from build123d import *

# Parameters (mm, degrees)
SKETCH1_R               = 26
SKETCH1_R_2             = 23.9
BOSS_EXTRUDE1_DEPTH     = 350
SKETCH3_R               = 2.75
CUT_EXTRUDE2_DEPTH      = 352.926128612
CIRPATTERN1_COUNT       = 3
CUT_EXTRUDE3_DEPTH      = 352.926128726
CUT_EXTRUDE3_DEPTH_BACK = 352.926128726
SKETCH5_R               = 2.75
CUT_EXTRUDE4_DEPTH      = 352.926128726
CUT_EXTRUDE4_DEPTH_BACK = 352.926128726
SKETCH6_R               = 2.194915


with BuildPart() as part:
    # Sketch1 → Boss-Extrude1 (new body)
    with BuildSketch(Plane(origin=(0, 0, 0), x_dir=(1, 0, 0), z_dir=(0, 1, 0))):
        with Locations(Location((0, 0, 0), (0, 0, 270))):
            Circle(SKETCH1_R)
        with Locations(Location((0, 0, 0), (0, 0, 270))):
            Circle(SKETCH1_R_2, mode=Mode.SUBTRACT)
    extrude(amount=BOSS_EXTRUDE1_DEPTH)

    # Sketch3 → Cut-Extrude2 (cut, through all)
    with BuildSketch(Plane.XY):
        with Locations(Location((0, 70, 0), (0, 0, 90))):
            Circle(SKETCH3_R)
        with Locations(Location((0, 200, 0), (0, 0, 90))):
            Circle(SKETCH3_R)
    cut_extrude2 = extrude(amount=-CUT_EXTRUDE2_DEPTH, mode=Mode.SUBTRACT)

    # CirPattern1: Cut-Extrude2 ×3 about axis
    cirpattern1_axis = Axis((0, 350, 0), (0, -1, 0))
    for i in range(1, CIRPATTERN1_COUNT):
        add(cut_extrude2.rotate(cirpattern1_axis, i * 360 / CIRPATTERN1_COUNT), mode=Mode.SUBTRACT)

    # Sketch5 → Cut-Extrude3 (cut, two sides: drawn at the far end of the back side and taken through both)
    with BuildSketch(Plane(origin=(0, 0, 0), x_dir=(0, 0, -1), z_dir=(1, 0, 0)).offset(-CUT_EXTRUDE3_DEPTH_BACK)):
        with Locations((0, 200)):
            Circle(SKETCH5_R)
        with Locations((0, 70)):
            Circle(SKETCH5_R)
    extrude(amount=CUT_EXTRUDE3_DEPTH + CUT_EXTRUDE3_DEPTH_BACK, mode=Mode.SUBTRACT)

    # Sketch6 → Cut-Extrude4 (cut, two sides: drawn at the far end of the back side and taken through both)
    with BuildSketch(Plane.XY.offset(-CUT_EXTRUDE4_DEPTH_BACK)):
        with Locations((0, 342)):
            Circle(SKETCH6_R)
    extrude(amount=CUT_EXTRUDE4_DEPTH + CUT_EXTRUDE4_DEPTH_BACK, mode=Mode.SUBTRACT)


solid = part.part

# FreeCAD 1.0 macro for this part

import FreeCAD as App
import Part
import Sketcher
from FreeCAD import Vector
Q = App.Units.Quantity

doc = App.newDocument("Part")
body = doc.addObject("PartDesign::Body", "Body")

# Sketch on XZ plane
sketch1 = body.newObject("Sketcher::SketchObject", "Sketch")
sketch1.AttachmentSupport = (doc.getObject("XZ_Plane"), [""])
sketch1.MapMode = "FlatFace"
sketch1.addGeometry(Part.Circle(Vector(0, 0, 0), Vector(0, 0, 1), 26), False)
sketch1.addGeometry(Part.Circle(Vector(0, 0, 0), Vector(0, 0, 1), 24), False)
sketch1.addConstraint(Sketcher.Constraint("Coincident", 0, 3, -1, 1))
sketch1.addConstraint(Sketcher.Constraint("Coincident", 1, 3, -1, 1))
sketch1.addConstraint(Sketcher.Constraint("Diameter", 0, Q("52 mm")))
sketch1.addConstraint(Sketcher.Constraint("Diameter", 1, Q("47.8 mm")))
pad1 = body.newObject("PartDesign::Pad", "Pad")
pad1.Profile = sketch1
pad1.Length = 350
pad1.Reversed = True

# Sketch on XY plane
sketch2 = body.newObject("Sketcher::SketchObject", "Sketch001")
sketch2.AttachmentSupport = (doc.getObject("XY_Plane"), [""])
sketch2.MapMode = "FlatFace"
sketch2.addGeometry(Part.Circle(Vector(0, 70, 0), Vector(0, 0, 1), 2.8), False)
sketch2.addGeometry(Part.Circle(Vector(0, 200, 0), Vector(0, 0, 1), 2.8), False)
sketch2.addConstraint(Sketcher.Constraint("Equal", 0, 1))
sketch2.addConstraint(Sketcher.Constraint("PointOnObject", 0, 3, -2))
sketch2.addConstraint(Sketcher.Constraint("PointOnObject", 1, 3, -2))
sketch2.addConstraint(Sketcher.Constraint("Diameter", 0, Q("5.5 mm")))
sketch2.addConstraint(Sketcher.Constraint("DistanceY", -1, 1, 0, 3, Q("70 mm")))
sketch2.addConstraint(Sketcher.Constraint("DistanceY", -1, 1, 1, 3, Q("200 mm")))
pocket1 = body.newObject("PartDesign::Pocket", "Pocket")
pocket1.Profile = sketch2
pocket1.Type = "ThroughAll"
doc.recompute()

polarpattern = body.newObject("PartDesign::PolarPattern", "PolarPattern")
polarpattern.Originals = [pocket1]
polarpattern.Axis = (doc.getObject("Y_Axis"), [""])
polarpattern.Angle = 360
polarpattern.Occurrences = 3
body.Tip = polarpattern

# Sketch on YZ plane
sketch3 = body.newObject("Sketcher::SketchObject", "Sketch002")
sketch3.AttachmentSupport = (doc.getObject("YZ_Plane"), [""])
sketch3.MapMode = "FlatFace"
sketch3.addGeometry(Part.Circle(Vector(200, 0, 0), Vector(0, 0, 1), 2.8), False)
sketch3.addGeometry(Part.Circle(Vector(70, 0, 0), Vector(0, 0, 1), 2.8), False)
sketch3.addConstraint(Sketcher.Constraint("Equal", 0, 1))
sketch3.addConstraint(Sketcher.Constraint("PointOnObject", 0, 3, -1))
sketch3.addConstraint(Sketcher.Constraint("PointOnObject", 1, 3, -1))
sketch3.addConstraint(Sketcher.Constraint("Diameter", 0, Q("5.5 mm")))
sketch3.addConstraint(Sketcher.Constraint("DistanceX", -1, 1, 0, 3, Q("200 mm")))
sketch3.addConstraint(Sketcher.Constraint("DistanceX", -1, 1, 1, 3, Q("70 mm")))
pocket2 = body.newObject("PartDesign::Pocket", "Pocket001")
pocket2.Profile = sketch3
pocket2.Type = "ThroughAll"
pocket2.Midplane = True

# Sketch on XY plane
sketch4 = body.newObject("Sketcher::SketchObject", "Sketch003")
sketch4.AttachmentSupport = (doc.getObject("XY_Plane"), [""])
sketch4.MapMode = "FlatFace"
sketch4.addGeometry(Part.Circle(Vector(0, 342, 0), Vector(0, 0, 1), 2.2), False)
sketch4.addConstraint(Sketcher.Constraint("PointOnObject", 0, 3, -2))
sketch4.addConstraint(Sketcher.Constraint("DistanceY", -1, 1, 0, 3, Q("342 mm")))
sketch4.addConstraint(Sketcher.Constraint("Diameter", 0, Q("4.38983 mm")))
pocket3 = body.newObject("PartDesign::Pocket", "Pocket002")
pocket3.Profile = sketch4
pocket3.Type = "ThroughAll"
pocket3.Midplane = True

doc.recompute()
